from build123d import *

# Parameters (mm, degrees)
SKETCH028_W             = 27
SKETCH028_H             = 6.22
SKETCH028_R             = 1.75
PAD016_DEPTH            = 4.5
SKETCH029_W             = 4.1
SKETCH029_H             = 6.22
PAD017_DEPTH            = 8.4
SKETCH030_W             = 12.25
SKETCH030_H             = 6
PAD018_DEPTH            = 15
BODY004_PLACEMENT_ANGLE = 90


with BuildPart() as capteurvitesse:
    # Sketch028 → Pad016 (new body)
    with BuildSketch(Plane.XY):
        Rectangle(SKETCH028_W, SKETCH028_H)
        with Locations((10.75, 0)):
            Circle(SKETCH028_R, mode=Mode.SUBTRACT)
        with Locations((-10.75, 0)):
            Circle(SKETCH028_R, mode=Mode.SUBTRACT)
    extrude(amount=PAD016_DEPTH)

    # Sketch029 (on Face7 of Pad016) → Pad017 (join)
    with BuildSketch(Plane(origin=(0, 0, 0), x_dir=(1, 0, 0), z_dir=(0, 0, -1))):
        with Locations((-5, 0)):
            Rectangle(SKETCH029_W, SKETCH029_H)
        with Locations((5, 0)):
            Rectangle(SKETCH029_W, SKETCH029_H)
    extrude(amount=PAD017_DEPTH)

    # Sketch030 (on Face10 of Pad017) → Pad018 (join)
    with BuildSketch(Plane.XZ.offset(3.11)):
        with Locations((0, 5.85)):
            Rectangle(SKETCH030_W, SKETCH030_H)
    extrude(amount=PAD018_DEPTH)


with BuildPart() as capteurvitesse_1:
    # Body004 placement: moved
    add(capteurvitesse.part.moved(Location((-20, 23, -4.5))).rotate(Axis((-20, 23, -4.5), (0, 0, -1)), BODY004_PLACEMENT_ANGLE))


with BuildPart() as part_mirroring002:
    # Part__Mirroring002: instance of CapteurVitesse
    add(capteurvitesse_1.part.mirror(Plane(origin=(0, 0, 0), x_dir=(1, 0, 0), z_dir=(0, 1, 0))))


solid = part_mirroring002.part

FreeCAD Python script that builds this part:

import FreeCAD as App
import Part
import Sketcher

V = App.Vector
Q = App.Units.Quantity


def add_polygon(sketch, points):
    """Adds a closed chain of lines whose ends are joined by coincident constraints."""
    first, n = sketch.GeometryCount, len(points)
    for a, b in zip(points, points[1:] + points[:1]):
        sketch.addGeometry(Part.LineSegment(App.Vector(*a, 0), App.Vector(*b, 0)), False)
    for i in range(n):
        sketch.addConstraint(Sketcher.Constraint("Coincident", first + i, 2, first + (i + 1) % n, 1))

doc = App.newDocument("Part")
body = doc.addObject("PartDesign::Body", "Body")

# Sketch on XY plane
sketch1 = doc.addObject("Sketcher::SketchObject", "Sketch")
body.addObject(sketch1)
sketch1.AttachmentSupport = (doc.XY_Plane, [""])
sketch1.MapMode = "FlatFace"
add_polygon(sketch1, [(-13.5, 3.1), (-13.5, -3.1), (13.5, -3.1), (13.5, 3.1)])  # lines 0-3
sketch1.addGeometry(Part.Circle(V(-10.8, 0, 0), V(0, 0, 1), 1.8), False)  # 4
sketch1.addGeometry(Part.Circle(V(10.8, 0, 0), V(0, 0, 1), 1.8), False)  # 5
sketch1.addConstraint(Sketcher.Constraint("Vertical", 0))
sketch1.addConstraint(Sketcher.Constraint("Horizontal", 1))
sketch1.addConstraint(Sketcher.Constraint("Vertical", 2))
sketch1.addConstraint(Sketcher.Constraint("Horizontal", 3))
sketch1.addConstraint(Sketcher.Constraint("Equal", 4, 5))
sketch1.addConstraint(Sketcher.Constraint("Symmetric", 4, 3, 5, 3, -1, 1))
sketch1.addConstraint(Sketcher.Constraint("Symmetric", 0, 2, 2, 2, -1, 1))
sketch1.addConstraint(Sketcher.Constraint("PointOnObject", 4, 3, -1))
sketch1.addConstraint(Sketcher.Constraint("Diameter", 4, Q("3.5 mm")))
sketch1.addConstraint(Sketcher.Constraint("DistanceX", 1, 1, 1, 2, Q("27 mm")))
sketch1.addConstraint(Sketcher.Constraint("DistanceY", 0, 2, 0, 1, Q("6.22 mm")))
sketch1.addConstraint(Sketcher.Constraint("DistanceX", 4, 3, 5, 3, Q("21.5 mm")))
pad1 = doc.addObject("PartDesign::Pad", "Pad")
body.addObject(pad1)
pad1.Profile = sketch1
pad1.Length = 4.5

# Sketch on XY plane
sketch2 = doc.addObject("Sketcher::SketchObject", "Sketch001")
body.addObject(sketch2)
sketch2.AttachmentSupport = (doc.XY_Plane, [""])
sketch2.MapMode = "FlatFace"
add_polygon(sketch2, [(-7, -3.1), (-7, 3.1), (-3, 3.1), (-3, -3.1)])  # lines 0-3
add_polygon(sketch2, [(3, -3.1), (3, 3.1), (7, 3.1), (7, -3.1)])  # lines 4-7
sketch2.addConstraint(Sketcher.Constraint("Vertical", 0))
sketch2.addConstraint(Sketcher.Constraint("Horizontal", 1))
sketch2.addConstraint(Sketcher.Constraint("Vertical", 2))
sketch2.addConstraint(Sketcher.Constraint("Horizontal", 3))
sketch2.addConstraint(Sketcher.Constraint("Vertical", 4))
sketch2.addConstraint(Sketcher.Constraint("Horizontal", 5))
sketch2.addConstraint(Sketcher.Constraint("Vertical", 6))
sketch2.addConstraint(Sketcher.Constraint("Horizontal", 7))
sketch2.addConstraint(Sketcher.Constraint("Symmetric", 2, 2, 4, 2, -1, 1))
sketch2.addConstraint(Sketcher.Constraint("Symmetric", 0, 2, 6, 2, -1, 1))
sketch2.addConstraint(Sketcher.Constraint("Horizontal", 1, 2, 4, 2))
sketch2.addConstraint(Sketcher.Constraint("DistanceX", 1, 1, 1, 2, Q("4.1 mm")))
sketch2.addConstraint(Sketcher.Constraint("DistanceX", 0, 2, 4, 2, Q("10 mm")))
sketch2.addConstraint(Sketcher.Constraint("DistanceY", 0, 1, 0, 2, Q("6.22 mm")))
pad2 = doc.addObject("PartDesign::Pad", "Pad001")
body.addObject(pad2)
pad2.Profile = sketch2
pad2.Length = 8.4
pad2.Reversed = True

# Sketch on XZ plane
sketch3 = doc.addObject("Sketcher::SketchObject", "Sketch002")
body.addObject(sketch3)
sketch3.AttachmentSupport = (doc.XZ_Plane, [""])
sketch3.MapMode = "FlatFace"
sketch3.AttachmentOffset = App.Placement(V(0, 0, 3.11), App.Rotation())
add_polygon(sketch3, [(-6, 9), (-6, 3), (6, 3), (6, 9)])  # lines 0-3
sketch3.addConstraint(Sketcher.Constraint("Vertical", 0))
sketch3.addConstraint(Sketcher.Constraint("Horizontal", 1))
sketch3.addConstraint(Sketcher.Constraint("Vertical", 2))
sketch3.addConstraint(Sketcher.Constraint("Horizontal", 3))
sketch3.addConstraint(Sketcher.Constraint("DistanceY", 0, 2, 0, 1, Q("6 mm")))
sketch3.addConstraint(Sketcher.Constraint("DistanceX", 1, 1, 1, 2, Q("12.25 mm")))
sketch3.addConstraint(Sketcher.Constraint("DistanceY", -1, 1, 0, 2, Q("2.85 mm")))
sketch3.addConstraint(Sketcher.Constraint("DistanceX", 0, 2, -1, 1, Q("6.125 mm")))
pad3 = doc.addObject("PartDesign::Pad", "Pad002")
body.addObject(pad3)
pad3.Profile = sketch3
pad3.Length = 15
body2 = doc.addObject("PartDesign::Body", "Body001")
doc.recompute()

body.Placement = App.Placement(V(-20, 23, -4.5), App.Rotation(V(0, 0, -1), 90))
boolean = doc.addObject("PartDesign::Boolean", "Boolean")
body2.addObject(boolean)
boolean.Type = "Fuse"
boolean.addObjects([body])
body3 = doc.addObject("PartDesign::Body", "Body002")
doc.recompute()

mirroring = doc.addObject("Part::Mirroring", "Mirroring")
mirroring.Source = body2
mirroring.Base = V(0, 0, 0)
mirroring.Normal = V(0, 1, 0)
body3.BaseFeature = mirroring
doc.recompute()
body2.Visibility = False
mirroring.Visibility = False

doc.recompute()
